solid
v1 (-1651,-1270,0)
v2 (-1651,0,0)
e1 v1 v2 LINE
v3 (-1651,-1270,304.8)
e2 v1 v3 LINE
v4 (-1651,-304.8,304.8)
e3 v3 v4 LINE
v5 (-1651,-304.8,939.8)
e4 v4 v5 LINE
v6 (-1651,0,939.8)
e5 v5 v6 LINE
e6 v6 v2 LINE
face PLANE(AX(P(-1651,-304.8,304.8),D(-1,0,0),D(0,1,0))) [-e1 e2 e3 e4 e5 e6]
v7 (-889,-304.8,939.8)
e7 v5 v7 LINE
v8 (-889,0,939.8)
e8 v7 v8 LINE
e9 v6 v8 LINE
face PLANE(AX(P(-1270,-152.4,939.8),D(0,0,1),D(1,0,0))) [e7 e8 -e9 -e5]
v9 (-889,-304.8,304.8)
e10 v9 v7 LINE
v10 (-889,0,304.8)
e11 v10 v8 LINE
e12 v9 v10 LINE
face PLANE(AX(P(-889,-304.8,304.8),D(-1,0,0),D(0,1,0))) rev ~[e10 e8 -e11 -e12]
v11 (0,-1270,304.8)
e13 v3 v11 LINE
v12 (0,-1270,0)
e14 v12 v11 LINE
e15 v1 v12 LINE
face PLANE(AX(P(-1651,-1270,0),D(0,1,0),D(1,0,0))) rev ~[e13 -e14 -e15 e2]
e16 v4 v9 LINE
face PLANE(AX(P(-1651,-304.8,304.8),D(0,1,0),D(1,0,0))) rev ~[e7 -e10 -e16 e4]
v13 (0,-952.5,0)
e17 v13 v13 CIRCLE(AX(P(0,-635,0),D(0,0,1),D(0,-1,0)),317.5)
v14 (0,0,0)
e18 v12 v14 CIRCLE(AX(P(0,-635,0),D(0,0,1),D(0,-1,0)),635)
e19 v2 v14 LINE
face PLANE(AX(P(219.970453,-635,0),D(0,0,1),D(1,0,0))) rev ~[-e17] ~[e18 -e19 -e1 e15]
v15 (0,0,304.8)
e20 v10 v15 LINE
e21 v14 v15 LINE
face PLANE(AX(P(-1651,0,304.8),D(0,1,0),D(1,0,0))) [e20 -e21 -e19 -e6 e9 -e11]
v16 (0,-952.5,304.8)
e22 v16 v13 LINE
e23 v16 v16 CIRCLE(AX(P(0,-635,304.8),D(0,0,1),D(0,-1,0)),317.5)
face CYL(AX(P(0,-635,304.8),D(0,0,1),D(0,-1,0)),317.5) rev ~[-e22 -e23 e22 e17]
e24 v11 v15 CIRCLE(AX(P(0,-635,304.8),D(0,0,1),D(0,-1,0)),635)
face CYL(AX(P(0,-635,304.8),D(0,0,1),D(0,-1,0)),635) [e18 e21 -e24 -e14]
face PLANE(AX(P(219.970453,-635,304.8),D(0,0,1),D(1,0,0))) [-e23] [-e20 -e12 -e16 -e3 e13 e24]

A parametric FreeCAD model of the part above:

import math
import FreeCAD as App
import Part
import Sketcher
from FreeCAD import Vector
Q = App.Units.Quantity

doc = App.newDocument("Part")
params = doc.addObject("Spreadsheet::Sheet", "Params")
for row, (alias, value) in enumerate([
    ("sketch1_width", "65 in"),
    ("sketch1_height", "50 in"),
    ("pad1_length", "12 in"),
    ("sketch2_width", "30 in"),
    ("sketch2_height", "12 in"),
    ("pad2_length", "25 in"),
    ("sketch3_radius", "25 in"),
    ("pad3_length", "12 in"),
    ("sketch4_diameter", "25 in"),
    ("pocket1_length", "12 in"),
], start=1):
    params.set(f"A{row}", alias)
    params.set(f"B{row}", "=" + value)
    params.setAlias(f"B{row}", alias)

body = doc.addObject("PartDesign::Body", "Body")

sketch1 = body.newObject("Sketcher::SketchObject", "Sketch")
sketch1.AttachmentSupport = (doc.getObject("XY_Plane"), [""])
sketch1.MapMode = "FlatFace"
sketch1.addGeometry([
    Part.LineSegment(Vector(-1651, 0, 0), Vector(-1651, -1270, 0)),
    Part.LineSegment(Vector(-1651, -1270, 0), Vector(0, -1270, 0)),
    Part.LineSegment(Vector(0, -1270, 0), Vector(0, 0, 0)),
    Part.LineSegment(Vector(0, 0, 0), Vector(-1651, 0, 0)),
], False)
sketch1.addConstraint([
    Sketcher.Constraint("Coincident", 0, 2, 1, 1),
    Sketcher.Constraint("Coincident", 1, 2, 2, 1),
    Sketcher.Constraint("Coincident", 2, 2, 3, 1),
    Sketcher.Constraint("Coincident", 3, 2, 0, 1),
    Sketcher.Constraint("Vertical", 0),
    Sketcher.Constraint("Horizontal", 1),
    Sketcher.Constraint("Vertical", 2),
    Sketcher.Constraint("Horizontal", 3),
    Sketcher.Constraint("Coincident", 2, 2, -1, 1),
    Sketcher.Constraint("DistanceX", 1, 1, 1, 2, Q("65 in")),
    Sketcher.Constraint("DistanceY", 0, 2, 0, 1, Q("50 in")),
])
sketch1.setExpression("Constraints[9]", "Params.sketch1_width")
sketch1.setExpression("Constraints[10]", "Params.sketch1_height")
pad1 = body.newObject("PartDesign::Pad", "Pad")
pad1.Profile = sketch1
pad1.setExpression("Length", "Params.pad1_length")

sketch2 = body.newObject("Sketcher::SketchObject", "Sketch001")
sketch2.AttachmentSupport = (doc.getObject("XY_Plane"), [""])
sketch2.MapMode = "FlatFace"
sketch2.AttachmentOffset = App.Placement(Vector(0, 0, 12 * 25.4), App.Rotation())
sketch2.addGeometry([
    Part.LineSegment(Vector(-1651, 0, 0), Vector(-1651, -305, 0)),
    Part.LineSegment(Vector(-1651, -305, 0), Vector(-889, -305, 0)),
    Part.LineSegment(Vector(-889, -305, 0), Vector(-889, 0, 0)),
    Part.LineSegment(Vector(-889, 0, 0), Vector(-1651, 0, 0)),
], False)
sketch2.addConstraint([
    Sketcher.Constraint("Coincident", 0, 2, 1, 1),
    Sketcher.Constraint("Coincident", 1, 2, 2, 1),
    Sketcher.Constraint("Coincident", 2, 2, 3, 1),
    Sketcher.Constraint("Coincident", 3, 2, 0, 1),
    Sketcher.Constraint("Vertical", 0),
    Sketcher.Constraint("Horizontal", 1),
    Sketcher.Constraint("Vertical", 2),
    Sketcher.Constraint("Horizontal", 3),
    Sketcher.Constraint("PointOnObject", 2, 2, -1),
    Sketcher.Constraint("DistanceX", 1, 1, 1, 2, Q("30 in")),
    Sketcher.Constraint("DistanceY", 0, 2, 0, 1, Q("12 in")),
    Sketcher.Constraint("DistanceX", 0, 2, -1, 1, Q("65 in")),
])
sketch2.setExpression("Constraints[9]", "Params.sketch2_width")
sketch2.setExpression("Constraints[10]", "Params.sketch2_height")
pad2 = body.newObject("PartDesign::Pad", "Pad001")
pad2.Profile = sketch2
pad2.setExpression("Length", "Params.pad2_length")

sketch3 = body.newObject("Sketcher::SketchObject", "Sketch002")
sketch3.AttachmentSupport = (doc.getObject("XY_Plane"), [""])
sketch3.MapMode = "FlatFace"
sketch3.AttachmentOffset = App.Placement(Vector(0, 0, 12 * 25.4), App.Rotation())
sketch3.addGeometry([
    Part.ArcOfCircle(Part.Circle(Vector(0, -635, 0), Vector(0, 0, 1), 635), math.radians(-90), math.radians(90)),
    Part.LineSegment(Vector(0, 0, 0), Vector(0, -1270, 0)),
], False)
sketch3.addConstraint([
    Sketcher.Constraint("Coincident", 0, 1, 1, 2),
    Sketcher.Constraint("Coincident", 1, 1, 0, 2),
    Sketcher.Constraint("Vertical", 1),
    Sketcher.Constraint("Coincident", 1, 1, -1, 1),
    Sketcher.Constraint("PointOnObject", 0, 3, -2),
    Sketcher.Constraint("Radius", 0, Q("25 in")),
])
sketch3.setExpression("Constraints[5]", "Params.sketch3_radius")
pad3 = body.newObject("PartDesign::Pad", "Pad002")
pad3.Profile = sketch3
pad3.setExpression("Length", "Params.pad3_length")
pad3.Reversed = True

sketch4 = body.newObject("Sketcher::SketchObject", "Sketch003")
sketch4.AttachmentSupport = (doc.getObject("XY_Plane"), [""])
sketch4.MapMode = "FlatFace"
sketch4.AttachmentOffset = App.Placement(Vector(0, 0, 12 * 25.4), App.Rotation())
sketch4.addGeometry(Part.Circle(Vector(0, -635, 0), Vector(0, 0, 1), 318), False)
sketch4.addConstraint([
    Sketcher.Constraint("PointOnObject", 0, 3, -2),
    Sketcher.Constraint("Diameter", 0, Q("25 in")),
    Sketcher.Constraint("DistanceY", 0, 3, -1, 1, Q("25 in")),
])
sketch4.setExpression("Constraints[1]", "Params.sketch4_diameter")
pocket1 = body.newObject("PartDesign::Pocket", "Pocket")
pocket1.Profile = sketch4
pocket1.setExpression("Length", "Params.pocket1_length")

doc.recompute()
